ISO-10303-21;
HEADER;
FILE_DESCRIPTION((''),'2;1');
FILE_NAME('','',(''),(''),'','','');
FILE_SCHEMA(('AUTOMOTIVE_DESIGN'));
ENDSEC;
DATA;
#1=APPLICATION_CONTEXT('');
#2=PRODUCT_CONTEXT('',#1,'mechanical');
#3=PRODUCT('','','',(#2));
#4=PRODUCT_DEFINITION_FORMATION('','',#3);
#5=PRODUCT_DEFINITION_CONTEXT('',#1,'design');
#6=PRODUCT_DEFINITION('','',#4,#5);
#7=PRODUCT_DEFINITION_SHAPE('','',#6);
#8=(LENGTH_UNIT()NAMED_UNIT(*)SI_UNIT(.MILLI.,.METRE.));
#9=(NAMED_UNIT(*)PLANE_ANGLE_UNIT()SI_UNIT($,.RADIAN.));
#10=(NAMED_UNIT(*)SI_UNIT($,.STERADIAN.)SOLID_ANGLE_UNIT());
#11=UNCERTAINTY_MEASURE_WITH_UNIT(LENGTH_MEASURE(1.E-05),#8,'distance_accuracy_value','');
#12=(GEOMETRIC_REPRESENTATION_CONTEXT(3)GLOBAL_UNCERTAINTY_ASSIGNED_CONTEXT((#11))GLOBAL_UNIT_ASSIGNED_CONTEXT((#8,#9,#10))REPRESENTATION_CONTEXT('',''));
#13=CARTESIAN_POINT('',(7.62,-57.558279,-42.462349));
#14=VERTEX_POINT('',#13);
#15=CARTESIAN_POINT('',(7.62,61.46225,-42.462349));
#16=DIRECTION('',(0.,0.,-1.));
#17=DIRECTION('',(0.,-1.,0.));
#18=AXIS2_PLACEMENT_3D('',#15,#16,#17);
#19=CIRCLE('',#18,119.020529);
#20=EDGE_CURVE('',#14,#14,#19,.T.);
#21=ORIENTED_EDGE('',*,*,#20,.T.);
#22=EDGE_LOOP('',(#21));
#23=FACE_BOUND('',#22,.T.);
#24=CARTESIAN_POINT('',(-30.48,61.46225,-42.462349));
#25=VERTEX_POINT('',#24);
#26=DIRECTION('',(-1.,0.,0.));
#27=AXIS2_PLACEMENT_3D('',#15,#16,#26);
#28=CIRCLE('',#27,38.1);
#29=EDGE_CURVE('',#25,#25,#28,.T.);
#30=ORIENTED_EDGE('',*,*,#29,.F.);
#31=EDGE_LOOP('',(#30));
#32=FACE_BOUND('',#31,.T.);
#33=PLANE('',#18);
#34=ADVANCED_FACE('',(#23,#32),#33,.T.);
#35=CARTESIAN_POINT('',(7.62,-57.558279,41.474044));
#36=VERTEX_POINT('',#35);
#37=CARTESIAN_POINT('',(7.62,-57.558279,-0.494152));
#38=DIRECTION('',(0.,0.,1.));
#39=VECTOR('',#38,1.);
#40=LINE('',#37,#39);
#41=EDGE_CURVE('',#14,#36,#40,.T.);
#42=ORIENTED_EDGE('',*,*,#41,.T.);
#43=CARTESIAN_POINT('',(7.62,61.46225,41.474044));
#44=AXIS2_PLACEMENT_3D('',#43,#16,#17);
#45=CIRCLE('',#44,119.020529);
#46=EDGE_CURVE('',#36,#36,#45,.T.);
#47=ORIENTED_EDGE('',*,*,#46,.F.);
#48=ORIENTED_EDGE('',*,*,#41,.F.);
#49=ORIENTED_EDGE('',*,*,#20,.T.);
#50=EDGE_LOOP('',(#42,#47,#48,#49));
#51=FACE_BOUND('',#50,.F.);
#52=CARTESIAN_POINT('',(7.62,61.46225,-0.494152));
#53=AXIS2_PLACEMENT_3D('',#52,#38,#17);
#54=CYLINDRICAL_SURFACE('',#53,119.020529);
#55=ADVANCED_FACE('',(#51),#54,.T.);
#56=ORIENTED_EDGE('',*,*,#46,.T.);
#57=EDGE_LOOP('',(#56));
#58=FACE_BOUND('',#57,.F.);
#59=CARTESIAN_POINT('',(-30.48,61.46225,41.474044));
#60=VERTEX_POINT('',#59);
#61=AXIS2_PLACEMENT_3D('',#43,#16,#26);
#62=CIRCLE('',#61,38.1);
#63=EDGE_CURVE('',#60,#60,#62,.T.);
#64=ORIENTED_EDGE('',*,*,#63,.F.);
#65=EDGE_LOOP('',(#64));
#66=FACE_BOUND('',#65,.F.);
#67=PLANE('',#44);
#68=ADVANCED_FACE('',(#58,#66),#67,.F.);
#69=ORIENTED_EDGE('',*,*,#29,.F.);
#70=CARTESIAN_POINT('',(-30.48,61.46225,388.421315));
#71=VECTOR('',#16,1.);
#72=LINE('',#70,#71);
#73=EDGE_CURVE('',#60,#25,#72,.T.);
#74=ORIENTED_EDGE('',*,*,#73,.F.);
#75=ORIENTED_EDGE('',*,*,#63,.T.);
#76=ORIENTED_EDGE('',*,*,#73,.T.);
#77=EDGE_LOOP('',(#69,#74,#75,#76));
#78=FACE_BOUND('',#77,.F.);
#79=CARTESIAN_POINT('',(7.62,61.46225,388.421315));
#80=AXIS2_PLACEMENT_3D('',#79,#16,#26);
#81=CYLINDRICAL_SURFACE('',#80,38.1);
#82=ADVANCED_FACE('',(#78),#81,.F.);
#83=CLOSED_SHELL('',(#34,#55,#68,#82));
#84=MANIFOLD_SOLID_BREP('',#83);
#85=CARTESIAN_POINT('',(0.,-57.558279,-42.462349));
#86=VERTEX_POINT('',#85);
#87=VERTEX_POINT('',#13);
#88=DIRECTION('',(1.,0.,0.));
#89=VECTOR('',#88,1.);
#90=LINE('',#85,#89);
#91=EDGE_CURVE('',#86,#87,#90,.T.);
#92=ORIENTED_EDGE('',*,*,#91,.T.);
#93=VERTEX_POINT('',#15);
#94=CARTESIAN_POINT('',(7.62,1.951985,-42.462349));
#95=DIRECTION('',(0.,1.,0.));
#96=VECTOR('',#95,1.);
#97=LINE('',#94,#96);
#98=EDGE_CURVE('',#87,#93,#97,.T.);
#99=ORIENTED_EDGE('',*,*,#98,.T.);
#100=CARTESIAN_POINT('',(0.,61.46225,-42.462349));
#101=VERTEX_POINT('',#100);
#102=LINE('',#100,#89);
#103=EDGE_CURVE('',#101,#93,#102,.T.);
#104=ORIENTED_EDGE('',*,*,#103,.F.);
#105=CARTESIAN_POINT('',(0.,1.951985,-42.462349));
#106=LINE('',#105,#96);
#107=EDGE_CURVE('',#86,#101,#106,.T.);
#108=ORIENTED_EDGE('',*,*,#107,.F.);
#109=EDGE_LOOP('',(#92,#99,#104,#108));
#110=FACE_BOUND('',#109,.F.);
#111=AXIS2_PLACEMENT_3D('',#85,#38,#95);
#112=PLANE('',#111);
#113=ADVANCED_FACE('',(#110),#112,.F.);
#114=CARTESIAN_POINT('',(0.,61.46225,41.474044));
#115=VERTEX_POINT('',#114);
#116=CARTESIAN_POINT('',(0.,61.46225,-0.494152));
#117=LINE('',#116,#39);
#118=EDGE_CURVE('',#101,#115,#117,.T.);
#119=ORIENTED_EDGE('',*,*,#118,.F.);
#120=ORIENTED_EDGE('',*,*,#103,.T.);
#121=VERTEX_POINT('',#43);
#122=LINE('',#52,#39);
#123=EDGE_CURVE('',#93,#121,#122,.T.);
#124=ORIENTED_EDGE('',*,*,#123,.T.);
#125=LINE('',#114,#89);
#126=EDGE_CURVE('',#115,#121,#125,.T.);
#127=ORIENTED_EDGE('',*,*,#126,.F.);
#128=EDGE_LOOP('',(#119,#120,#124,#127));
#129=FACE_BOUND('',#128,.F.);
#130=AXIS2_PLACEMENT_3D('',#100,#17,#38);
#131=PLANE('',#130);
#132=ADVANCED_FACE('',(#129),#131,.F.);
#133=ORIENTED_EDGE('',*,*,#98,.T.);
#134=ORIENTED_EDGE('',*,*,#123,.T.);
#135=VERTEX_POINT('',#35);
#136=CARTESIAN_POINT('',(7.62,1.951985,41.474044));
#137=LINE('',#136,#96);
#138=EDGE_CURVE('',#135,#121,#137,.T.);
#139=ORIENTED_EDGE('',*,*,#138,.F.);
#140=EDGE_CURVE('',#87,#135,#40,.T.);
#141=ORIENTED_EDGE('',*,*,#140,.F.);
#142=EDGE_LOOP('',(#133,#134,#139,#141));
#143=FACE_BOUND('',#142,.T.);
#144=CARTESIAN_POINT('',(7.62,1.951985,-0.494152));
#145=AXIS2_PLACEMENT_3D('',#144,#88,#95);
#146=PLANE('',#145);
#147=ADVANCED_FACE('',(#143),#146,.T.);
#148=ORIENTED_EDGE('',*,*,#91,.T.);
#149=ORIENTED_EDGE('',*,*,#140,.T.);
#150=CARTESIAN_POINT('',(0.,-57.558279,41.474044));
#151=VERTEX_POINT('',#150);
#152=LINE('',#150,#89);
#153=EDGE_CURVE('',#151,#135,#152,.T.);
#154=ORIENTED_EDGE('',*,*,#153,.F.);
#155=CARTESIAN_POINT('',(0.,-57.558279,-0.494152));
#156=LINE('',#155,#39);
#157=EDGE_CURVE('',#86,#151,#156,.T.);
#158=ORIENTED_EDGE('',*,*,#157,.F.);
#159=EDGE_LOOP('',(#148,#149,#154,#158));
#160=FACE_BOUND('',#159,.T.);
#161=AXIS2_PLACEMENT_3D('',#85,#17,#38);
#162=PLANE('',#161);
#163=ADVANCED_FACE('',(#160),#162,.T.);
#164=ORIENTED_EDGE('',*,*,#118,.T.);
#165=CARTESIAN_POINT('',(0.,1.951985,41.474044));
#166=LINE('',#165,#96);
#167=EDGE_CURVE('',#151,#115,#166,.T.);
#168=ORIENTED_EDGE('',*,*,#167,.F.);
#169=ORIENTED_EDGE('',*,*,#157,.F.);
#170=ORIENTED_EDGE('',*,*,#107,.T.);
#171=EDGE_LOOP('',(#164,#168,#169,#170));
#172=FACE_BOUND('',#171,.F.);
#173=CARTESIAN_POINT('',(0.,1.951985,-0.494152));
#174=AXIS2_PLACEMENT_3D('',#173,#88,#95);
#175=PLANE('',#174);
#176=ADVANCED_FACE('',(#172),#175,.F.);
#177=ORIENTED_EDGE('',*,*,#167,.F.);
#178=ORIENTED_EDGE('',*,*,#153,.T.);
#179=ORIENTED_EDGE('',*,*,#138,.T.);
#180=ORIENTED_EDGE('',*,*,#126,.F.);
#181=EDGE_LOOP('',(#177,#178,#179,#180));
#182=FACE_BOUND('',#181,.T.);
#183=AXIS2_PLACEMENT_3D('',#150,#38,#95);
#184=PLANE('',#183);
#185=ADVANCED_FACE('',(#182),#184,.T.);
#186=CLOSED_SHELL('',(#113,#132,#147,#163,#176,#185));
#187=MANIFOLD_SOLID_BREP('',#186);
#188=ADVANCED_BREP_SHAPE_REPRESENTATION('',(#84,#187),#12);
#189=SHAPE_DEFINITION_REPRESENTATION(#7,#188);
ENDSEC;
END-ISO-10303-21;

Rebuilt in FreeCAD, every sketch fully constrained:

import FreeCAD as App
import Part
import Sketcher

V = App.Vector
Q = App.Units.Quantity

doc = App.newDocument("Part")
body = doc.addObject("PartDesign::Body", "Body")

# Sketch on YZ plane
sketch1 = body.newObject("Sketcher::SketchObject", "Sketch")
sketch1.AttachmentSupport = (doc.getObject("YZ_Plane"), [""])
sketch1.MapMode = "FlatFace"
sketch1.addGeometry([
    Part.LineSegment(V(-57.558279, 41.474044, 0), V(-57.558279, -42.462349, 0)),
    Part.LineSegment(V(-57.558279, -42.462349, 0), V(61.46225, -42.462349, 0)),
    Part.LineSegment(V(61.46225, -42.462349, 0), V(61.46225, 41.474044, 0)),
    Part.LineSegment(V(61.46225, 41.474044, 0), V(-57.558279, 41.474044, 0)),
], False)
sketch1.addConstraint([
    Sketcher.Constraint("Coincident", 0, 2, 1, 1),
    Sketcher.Constraint("Coincident", 1, 2, 2, 1),
    Sketcher.Constraint("Coincident", 2, 2, 3, 1),
    Sketcher.Constraint("Coincident", 3, 2, 0, 1),
    Sketcher.Constraint("Vertical", 0),
    Sketcher.Constraint("Horizontal", 1),
    Sketcher.Constraint("Vertical", 2),
    Sketcher.Constraint("Horizontal", 3),
    Sketcher.Constraint("DistanceX", 1, 1, 1, 2, Q("119.020529 mm")),
    Sketcher.Constraint("DistanceY", 0, 2, 0, 1, Q("83.936393 mm")),
    Sketcher.Constraint("DistanceX", 0, 2, -1, 1, Q("57.558279 mm")),
    Sketcher.Constraint("DistanceY", 0, 2, -1, 1, Q("42.462349 mm")),
])
pad1 = body.newObject("PartDesign::Pad", "Pad")
pad1.Profile = sketch1
pad1.Length = Q("0.3 in")
body2 = doc.addObject("PartDesign::Body", "Body001")

# Sketch on YZ plane
sketch2 = body2.newObject("Sketcher::SketchObject", "Sketch001")
sketch2.AttachmentSupport = (doc.getObject("YZ_Plane001"), [""])
sketch2.MapMode = "FlatFace"
sketch2.AttachmentOffset = App.Placement(V(0, 0, 0.3 * 25.4), App.Rotation())
sketch2.addGeometry([
    Part.LineSegment(V(-57.558279, 41.474044, 0), V(-57.558279, -42.462349, 0)),
    Part.LineSegment(V(-57.558279, -42.462349, 0), V(61.46225, -42.462349, 0)),
    Part.LineSegment(V(61.46225, -42.462349, 0), V(61.46225, 41.474044, 0)),
    Part.LineSegment(V(61.46225, 41.474044, 0), V(-57.558279, 41.474044, 0)),
], False)
sketch2.addGeometry(Part.LineSegment(V(61.46225, 41.474044, 0), V(61.46225, -42.462349, 0)), True)  # axis
sketch2.addConstraint([
    Sketcher.Constraint("Coincident", 0, 2, 1, 1),
    Sketcher.Constraint("Coincident", 1, 2, 2, 1),
    Sketcher.Constraint("Coincident", 2, 2, 3, 1),
    Sketcher.Constraint("Coincident", 3, 2, 0, 1),
    Sketcher.Constraint("Vertical", 0),
    Sketcher.Constraint("Horizontal", 1),
    Sketcher.Constraint("Vertical", 2),
    Sketcher.Constraint("Horizontal", 3),
    Sketcher.Constraint("Vertical", 4),
    Sketcher.Constraint("Coincident", 4, 1, 2, 2),
    Sketcher.Constraint("Horizontal", 0, 2, 4, 2),
    Sketcher.Constraint("DistanceX", 1, 1, 1, 2, Q("119.020529 mm")),
    Sketcher.Constraint("DistanceY", 0, 2, 0, 1, Q("83.936393 mm")),
    Sketcher.Constraint("DistanceX", 0, 2, -1, 1, Q("57.558279 mm")),
    Sketcher.Constraint("DistanceY", 0, 2, -1, 1, Q("42.462349 mm")),
])
revolution = body2.newObject("PartDesign::Revolution", "Revolution")
revolution.Profile = sketch2
revolution.ReferenceAxis = (sketch2, ["Axis0"])
revolution.Angle = 360

# Sketch on XY plane
sketch3 = body2.newObject("Sketcher::SketchObject", "Sketch002")
sketch3.AttachmentSupport = (doc.getObject("XY_Plane001"), [""])
sketch3.MapMode = "FlatFace"
sketch3.AttachmentOffset = App.Placement(V(0, 0, 41.474044), App.Rotation())
sketch3.addGeometry(Part.Circle(V(7.62, 61.46225, 0), V(0, 0, 1), 38.1), False)
sketch3.addConstraint([
    Sketcher.Constraint("Diameter", 0, Q("3 in")),
    Sketcher.Constraint("DistanceX", -1, 1, 0, 3, Q("0.3 in")),
    Sketcher.Constraint("DistanceY", -1, 1, 0, 3, Q("61.46225 mm")),
])
doc.recompute()
hole = body2.newObject("PartDesign::Hole", "Hole")
hole.Profile = sketch3
hole.ThreadType = "None"
hole.Diameter = Q("3 in")
hole.DepthType = "ThroughAll"

doc.recompute()
